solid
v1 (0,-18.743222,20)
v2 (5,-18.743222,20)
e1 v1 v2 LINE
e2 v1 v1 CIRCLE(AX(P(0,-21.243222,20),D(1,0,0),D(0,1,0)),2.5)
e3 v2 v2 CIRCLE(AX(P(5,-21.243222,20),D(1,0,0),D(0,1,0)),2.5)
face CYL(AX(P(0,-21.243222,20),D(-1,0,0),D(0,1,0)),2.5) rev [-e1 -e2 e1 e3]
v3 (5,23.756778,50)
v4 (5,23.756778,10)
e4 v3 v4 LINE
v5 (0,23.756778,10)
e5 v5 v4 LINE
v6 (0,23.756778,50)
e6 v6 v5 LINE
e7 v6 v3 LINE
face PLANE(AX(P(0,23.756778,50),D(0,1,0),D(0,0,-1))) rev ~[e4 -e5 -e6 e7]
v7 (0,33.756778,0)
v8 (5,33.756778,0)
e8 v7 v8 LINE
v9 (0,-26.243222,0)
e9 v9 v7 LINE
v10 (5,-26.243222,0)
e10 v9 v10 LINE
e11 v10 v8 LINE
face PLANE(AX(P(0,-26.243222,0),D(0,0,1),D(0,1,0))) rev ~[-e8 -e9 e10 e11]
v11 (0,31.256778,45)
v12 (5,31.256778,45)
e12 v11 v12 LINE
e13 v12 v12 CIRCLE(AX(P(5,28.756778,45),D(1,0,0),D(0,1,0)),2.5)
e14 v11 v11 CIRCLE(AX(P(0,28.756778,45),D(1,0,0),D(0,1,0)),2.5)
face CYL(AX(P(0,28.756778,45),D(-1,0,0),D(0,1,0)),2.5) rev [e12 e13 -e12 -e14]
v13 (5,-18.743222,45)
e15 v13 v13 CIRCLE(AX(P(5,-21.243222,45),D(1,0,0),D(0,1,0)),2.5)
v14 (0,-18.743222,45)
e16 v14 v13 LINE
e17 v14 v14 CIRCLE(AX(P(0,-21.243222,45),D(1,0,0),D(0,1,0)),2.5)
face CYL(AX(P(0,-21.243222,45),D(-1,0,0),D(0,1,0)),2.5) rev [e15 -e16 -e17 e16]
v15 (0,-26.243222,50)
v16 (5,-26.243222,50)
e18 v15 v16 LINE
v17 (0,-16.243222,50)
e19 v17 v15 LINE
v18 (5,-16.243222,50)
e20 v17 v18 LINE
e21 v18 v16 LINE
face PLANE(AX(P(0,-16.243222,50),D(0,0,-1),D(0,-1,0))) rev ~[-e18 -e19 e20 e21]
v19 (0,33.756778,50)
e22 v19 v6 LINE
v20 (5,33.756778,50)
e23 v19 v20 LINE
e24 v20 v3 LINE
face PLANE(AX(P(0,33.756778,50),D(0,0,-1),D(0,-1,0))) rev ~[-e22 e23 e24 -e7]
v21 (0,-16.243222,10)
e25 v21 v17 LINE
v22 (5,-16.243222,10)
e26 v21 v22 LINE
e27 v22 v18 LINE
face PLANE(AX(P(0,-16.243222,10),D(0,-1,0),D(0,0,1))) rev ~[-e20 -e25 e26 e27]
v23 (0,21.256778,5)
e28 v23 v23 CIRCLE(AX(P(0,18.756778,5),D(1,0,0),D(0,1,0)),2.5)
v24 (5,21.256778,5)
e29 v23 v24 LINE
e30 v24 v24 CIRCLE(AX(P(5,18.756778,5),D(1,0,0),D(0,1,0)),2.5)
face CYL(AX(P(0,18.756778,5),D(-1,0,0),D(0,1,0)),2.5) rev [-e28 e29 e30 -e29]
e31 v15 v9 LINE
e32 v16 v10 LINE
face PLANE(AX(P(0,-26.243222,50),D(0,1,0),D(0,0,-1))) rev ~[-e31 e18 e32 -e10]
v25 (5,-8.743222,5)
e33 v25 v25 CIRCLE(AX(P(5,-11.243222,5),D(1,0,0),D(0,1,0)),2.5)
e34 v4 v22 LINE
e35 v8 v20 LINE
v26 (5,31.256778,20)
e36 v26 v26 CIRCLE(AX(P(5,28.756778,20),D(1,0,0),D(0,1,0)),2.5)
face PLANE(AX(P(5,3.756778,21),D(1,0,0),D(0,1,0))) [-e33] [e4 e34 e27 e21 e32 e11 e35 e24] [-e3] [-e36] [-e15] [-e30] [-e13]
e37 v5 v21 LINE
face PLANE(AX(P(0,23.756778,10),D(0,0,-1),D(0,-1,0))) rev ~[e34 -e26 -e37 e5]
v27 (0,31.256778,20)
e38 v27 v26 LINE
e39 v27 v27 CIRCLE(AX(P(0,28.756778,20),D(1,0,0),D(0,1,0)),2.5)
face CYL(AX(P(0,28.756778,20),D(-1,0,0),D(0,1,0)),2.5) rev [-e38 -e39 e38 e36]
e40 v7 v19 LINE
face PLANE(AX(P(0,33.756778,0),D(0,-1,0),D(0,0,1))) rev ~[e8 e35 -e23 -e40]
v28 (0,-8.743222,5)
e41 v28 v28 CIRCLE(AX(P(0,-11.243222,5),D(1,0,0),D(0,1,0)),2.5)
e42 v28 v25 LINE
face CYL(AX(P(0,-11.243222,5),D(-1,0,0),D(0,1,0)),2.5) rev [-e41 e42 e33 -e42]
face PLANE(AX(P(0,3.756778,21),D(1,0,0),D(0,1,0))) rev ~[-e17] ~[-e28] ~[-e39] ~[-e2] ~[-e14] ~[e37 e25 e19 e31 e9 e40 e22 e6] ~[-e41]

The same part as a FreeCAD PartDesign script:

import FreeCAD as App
import Part
import Sketcher

V = App.Vector

doc = App.newDocument("Part")
body = doc.addObject("PartDesign::Body", "Body")

# Sketch on YZ plane
sketch1 = body.newObject("Sketcher::SketchObject", "Sketch")
sketch1.AttachmentSupport = (doc.getObject("YZ_Plane"), [""])
sketch1.MapMode = "FlatFace"
sketch1.addGeometry([
    Part.LineSegment(V(-16.2, 50, 0), V(-26.2, 50, 0)),  # 0
    Part.LineSegment(V(-26.2, 50, 0), V(-26.2, 0, 0)),  # 1
    Part.LineSegment(V(-26.2, 0, 0), V(33.8, 0, 0)),  # 2
    Part.LineSegment(V(33.8, 0, 0), V(33.8, 50, 0)),  # 3
    Part.LineSegment(V(33.8, 50, 0), V(23.8, 50, 0)),  # 4
    Part.LineSegment(V(23.8, 50, 0), V(23.8, 10, 0)),  # 5
    Part.LineSegment(V(23.8, 10, 0), V(-16.2, 10, 0)),  # 6
    Part.LineSegment(V(-16.2, 10, 0), V(-16.2, 50, 0)),  # 7
    Part.Circle(V(-11.2, 5, 0), V(0, 0, 1), 2.5),  # 8
    Part.Circle(V(-21.2, 20, 0), V(0, 0, 1), 2.5),  # 9
    Part.Circle(V(18.8, 5, 0), V(0, 0, 1), 2.5),  # 10
    Part.Circle(V(28.8, 20, 0), V(0, 0, 1), 2.5),  # 11
    Part.Circle(V(-21.2, 45, 0), V(0, 0, 1), 2.5),  # 12
    Part.Circle(V(28.8, 45, 0), V(0, 0, 1), 2.5),  # 13
], False)
sketch1.addConstraint([
    Sketcher.Constraint("Coincident", 0, 2, 1, 1),
    Sketcher.Constraint("Coincident", 1, 2, 2, 1),
    Sketcher.Constraint("Coincident", 2, 2, 3, 1),
    Sketcher.Constraint("Coincident", 3, 2, 4, 1),
    Sketcher.Constraint("Coincident", 4, 2, 5, 1),
    Sketcher.Constraint("Coincident", 5, 2, 6, 1),
    Sketcher.Constraint("Coincident", 6, 2, 7, 1),
    Sketcher.Constraint("Coincident", 7, 2, 0, 1),
    Sketcher.Constraint("Horizontal", 0),
    Sketcher.Constraint("Vertical", 1),
    Sketcher.Constraint("Horizontal", 2),
    Sketcher.Constraint("Vertical", 3),
    Sketcher.Constraint("Horizontal", 4),
    Sketcher.Constraint("Vertical", 5),
    Sketcher.Constraint("Horizontal", 6),
    Sketcher.Constraint("Vertical", 7),
    Sketcher.Constraint("Equal", 8, 9),
    Sketcher.Constraint("Equal", 9, 10),
    Sketcher.Constraint("Equal", 10, 11),
    Sketcher.Constraint("Equal", 11, 12),
    Sketcher.Constraint("Equal", 12, 13),
    Sketcher.Constraint("PointOnObject", 1, 2, -1),
    Sketcher.Constraint("Horizontal", 8, 3, 10, 3),
    Sketcher.Constraint("Horizontal", 9, 3, 11, 3),
    Sketcher.Constraint("Horizontal", 12, 3, 13, 3),
    Sketcher.Constraint("Horizontal", 0, 2, 3, 2),
    Sketcher.Constraint("Vertical", 9, 3, 12, 3),
    Sketcher.Constraint("Vertical", 11, 3, 13, 3),
    Sketcher.Constraint("Equal", 0, 4),
    Sketcher.Constraint("Equal", 6, 5),
    Sketcher.Constraint("Diameter", 8, 5.0),
    Sketcher.Constraint("DistanceX", 0, 2, 0, 1, 10.0),
    Sketcher.Constraint("DistanceX", 2, 1, 2, 2, 60.0),
    Sketcher.Constraint("DistanceY", 1, 2, 1, 1, 50.0),
    Sketcher.Constraint("DistanceY", -1, 1, 8, 3, 5.0),
    Sketcher.Constraint("DistanceY", -1, 1, 9, 3, 20.0),
    Sketcher.Constraint("DistanceY", -1, 1, 12, 3, 45.0),
    Sketcher.Constraint("DistanceX", 9, 3, 8, 3, 10.0),
    Sketcher.Constraint("DistanceX", 8, 3, 10, 3, 30.0),
    Sketcher.Constraint("DistanceX", 10, 3, 11, 3, 10.0),
    Sketcher.Constraint("DistanceX", 0, 2, 12, 3, 5.0),
    Sketcher.Constraint("DistanceX", 8, 3, -1, 1, 11.243222),
])
pad1 = body.newObject("PartDesign::Pad", "Pad")
pad1.Profile = sketch1
pad1.Length = 5

doc.recompute()
